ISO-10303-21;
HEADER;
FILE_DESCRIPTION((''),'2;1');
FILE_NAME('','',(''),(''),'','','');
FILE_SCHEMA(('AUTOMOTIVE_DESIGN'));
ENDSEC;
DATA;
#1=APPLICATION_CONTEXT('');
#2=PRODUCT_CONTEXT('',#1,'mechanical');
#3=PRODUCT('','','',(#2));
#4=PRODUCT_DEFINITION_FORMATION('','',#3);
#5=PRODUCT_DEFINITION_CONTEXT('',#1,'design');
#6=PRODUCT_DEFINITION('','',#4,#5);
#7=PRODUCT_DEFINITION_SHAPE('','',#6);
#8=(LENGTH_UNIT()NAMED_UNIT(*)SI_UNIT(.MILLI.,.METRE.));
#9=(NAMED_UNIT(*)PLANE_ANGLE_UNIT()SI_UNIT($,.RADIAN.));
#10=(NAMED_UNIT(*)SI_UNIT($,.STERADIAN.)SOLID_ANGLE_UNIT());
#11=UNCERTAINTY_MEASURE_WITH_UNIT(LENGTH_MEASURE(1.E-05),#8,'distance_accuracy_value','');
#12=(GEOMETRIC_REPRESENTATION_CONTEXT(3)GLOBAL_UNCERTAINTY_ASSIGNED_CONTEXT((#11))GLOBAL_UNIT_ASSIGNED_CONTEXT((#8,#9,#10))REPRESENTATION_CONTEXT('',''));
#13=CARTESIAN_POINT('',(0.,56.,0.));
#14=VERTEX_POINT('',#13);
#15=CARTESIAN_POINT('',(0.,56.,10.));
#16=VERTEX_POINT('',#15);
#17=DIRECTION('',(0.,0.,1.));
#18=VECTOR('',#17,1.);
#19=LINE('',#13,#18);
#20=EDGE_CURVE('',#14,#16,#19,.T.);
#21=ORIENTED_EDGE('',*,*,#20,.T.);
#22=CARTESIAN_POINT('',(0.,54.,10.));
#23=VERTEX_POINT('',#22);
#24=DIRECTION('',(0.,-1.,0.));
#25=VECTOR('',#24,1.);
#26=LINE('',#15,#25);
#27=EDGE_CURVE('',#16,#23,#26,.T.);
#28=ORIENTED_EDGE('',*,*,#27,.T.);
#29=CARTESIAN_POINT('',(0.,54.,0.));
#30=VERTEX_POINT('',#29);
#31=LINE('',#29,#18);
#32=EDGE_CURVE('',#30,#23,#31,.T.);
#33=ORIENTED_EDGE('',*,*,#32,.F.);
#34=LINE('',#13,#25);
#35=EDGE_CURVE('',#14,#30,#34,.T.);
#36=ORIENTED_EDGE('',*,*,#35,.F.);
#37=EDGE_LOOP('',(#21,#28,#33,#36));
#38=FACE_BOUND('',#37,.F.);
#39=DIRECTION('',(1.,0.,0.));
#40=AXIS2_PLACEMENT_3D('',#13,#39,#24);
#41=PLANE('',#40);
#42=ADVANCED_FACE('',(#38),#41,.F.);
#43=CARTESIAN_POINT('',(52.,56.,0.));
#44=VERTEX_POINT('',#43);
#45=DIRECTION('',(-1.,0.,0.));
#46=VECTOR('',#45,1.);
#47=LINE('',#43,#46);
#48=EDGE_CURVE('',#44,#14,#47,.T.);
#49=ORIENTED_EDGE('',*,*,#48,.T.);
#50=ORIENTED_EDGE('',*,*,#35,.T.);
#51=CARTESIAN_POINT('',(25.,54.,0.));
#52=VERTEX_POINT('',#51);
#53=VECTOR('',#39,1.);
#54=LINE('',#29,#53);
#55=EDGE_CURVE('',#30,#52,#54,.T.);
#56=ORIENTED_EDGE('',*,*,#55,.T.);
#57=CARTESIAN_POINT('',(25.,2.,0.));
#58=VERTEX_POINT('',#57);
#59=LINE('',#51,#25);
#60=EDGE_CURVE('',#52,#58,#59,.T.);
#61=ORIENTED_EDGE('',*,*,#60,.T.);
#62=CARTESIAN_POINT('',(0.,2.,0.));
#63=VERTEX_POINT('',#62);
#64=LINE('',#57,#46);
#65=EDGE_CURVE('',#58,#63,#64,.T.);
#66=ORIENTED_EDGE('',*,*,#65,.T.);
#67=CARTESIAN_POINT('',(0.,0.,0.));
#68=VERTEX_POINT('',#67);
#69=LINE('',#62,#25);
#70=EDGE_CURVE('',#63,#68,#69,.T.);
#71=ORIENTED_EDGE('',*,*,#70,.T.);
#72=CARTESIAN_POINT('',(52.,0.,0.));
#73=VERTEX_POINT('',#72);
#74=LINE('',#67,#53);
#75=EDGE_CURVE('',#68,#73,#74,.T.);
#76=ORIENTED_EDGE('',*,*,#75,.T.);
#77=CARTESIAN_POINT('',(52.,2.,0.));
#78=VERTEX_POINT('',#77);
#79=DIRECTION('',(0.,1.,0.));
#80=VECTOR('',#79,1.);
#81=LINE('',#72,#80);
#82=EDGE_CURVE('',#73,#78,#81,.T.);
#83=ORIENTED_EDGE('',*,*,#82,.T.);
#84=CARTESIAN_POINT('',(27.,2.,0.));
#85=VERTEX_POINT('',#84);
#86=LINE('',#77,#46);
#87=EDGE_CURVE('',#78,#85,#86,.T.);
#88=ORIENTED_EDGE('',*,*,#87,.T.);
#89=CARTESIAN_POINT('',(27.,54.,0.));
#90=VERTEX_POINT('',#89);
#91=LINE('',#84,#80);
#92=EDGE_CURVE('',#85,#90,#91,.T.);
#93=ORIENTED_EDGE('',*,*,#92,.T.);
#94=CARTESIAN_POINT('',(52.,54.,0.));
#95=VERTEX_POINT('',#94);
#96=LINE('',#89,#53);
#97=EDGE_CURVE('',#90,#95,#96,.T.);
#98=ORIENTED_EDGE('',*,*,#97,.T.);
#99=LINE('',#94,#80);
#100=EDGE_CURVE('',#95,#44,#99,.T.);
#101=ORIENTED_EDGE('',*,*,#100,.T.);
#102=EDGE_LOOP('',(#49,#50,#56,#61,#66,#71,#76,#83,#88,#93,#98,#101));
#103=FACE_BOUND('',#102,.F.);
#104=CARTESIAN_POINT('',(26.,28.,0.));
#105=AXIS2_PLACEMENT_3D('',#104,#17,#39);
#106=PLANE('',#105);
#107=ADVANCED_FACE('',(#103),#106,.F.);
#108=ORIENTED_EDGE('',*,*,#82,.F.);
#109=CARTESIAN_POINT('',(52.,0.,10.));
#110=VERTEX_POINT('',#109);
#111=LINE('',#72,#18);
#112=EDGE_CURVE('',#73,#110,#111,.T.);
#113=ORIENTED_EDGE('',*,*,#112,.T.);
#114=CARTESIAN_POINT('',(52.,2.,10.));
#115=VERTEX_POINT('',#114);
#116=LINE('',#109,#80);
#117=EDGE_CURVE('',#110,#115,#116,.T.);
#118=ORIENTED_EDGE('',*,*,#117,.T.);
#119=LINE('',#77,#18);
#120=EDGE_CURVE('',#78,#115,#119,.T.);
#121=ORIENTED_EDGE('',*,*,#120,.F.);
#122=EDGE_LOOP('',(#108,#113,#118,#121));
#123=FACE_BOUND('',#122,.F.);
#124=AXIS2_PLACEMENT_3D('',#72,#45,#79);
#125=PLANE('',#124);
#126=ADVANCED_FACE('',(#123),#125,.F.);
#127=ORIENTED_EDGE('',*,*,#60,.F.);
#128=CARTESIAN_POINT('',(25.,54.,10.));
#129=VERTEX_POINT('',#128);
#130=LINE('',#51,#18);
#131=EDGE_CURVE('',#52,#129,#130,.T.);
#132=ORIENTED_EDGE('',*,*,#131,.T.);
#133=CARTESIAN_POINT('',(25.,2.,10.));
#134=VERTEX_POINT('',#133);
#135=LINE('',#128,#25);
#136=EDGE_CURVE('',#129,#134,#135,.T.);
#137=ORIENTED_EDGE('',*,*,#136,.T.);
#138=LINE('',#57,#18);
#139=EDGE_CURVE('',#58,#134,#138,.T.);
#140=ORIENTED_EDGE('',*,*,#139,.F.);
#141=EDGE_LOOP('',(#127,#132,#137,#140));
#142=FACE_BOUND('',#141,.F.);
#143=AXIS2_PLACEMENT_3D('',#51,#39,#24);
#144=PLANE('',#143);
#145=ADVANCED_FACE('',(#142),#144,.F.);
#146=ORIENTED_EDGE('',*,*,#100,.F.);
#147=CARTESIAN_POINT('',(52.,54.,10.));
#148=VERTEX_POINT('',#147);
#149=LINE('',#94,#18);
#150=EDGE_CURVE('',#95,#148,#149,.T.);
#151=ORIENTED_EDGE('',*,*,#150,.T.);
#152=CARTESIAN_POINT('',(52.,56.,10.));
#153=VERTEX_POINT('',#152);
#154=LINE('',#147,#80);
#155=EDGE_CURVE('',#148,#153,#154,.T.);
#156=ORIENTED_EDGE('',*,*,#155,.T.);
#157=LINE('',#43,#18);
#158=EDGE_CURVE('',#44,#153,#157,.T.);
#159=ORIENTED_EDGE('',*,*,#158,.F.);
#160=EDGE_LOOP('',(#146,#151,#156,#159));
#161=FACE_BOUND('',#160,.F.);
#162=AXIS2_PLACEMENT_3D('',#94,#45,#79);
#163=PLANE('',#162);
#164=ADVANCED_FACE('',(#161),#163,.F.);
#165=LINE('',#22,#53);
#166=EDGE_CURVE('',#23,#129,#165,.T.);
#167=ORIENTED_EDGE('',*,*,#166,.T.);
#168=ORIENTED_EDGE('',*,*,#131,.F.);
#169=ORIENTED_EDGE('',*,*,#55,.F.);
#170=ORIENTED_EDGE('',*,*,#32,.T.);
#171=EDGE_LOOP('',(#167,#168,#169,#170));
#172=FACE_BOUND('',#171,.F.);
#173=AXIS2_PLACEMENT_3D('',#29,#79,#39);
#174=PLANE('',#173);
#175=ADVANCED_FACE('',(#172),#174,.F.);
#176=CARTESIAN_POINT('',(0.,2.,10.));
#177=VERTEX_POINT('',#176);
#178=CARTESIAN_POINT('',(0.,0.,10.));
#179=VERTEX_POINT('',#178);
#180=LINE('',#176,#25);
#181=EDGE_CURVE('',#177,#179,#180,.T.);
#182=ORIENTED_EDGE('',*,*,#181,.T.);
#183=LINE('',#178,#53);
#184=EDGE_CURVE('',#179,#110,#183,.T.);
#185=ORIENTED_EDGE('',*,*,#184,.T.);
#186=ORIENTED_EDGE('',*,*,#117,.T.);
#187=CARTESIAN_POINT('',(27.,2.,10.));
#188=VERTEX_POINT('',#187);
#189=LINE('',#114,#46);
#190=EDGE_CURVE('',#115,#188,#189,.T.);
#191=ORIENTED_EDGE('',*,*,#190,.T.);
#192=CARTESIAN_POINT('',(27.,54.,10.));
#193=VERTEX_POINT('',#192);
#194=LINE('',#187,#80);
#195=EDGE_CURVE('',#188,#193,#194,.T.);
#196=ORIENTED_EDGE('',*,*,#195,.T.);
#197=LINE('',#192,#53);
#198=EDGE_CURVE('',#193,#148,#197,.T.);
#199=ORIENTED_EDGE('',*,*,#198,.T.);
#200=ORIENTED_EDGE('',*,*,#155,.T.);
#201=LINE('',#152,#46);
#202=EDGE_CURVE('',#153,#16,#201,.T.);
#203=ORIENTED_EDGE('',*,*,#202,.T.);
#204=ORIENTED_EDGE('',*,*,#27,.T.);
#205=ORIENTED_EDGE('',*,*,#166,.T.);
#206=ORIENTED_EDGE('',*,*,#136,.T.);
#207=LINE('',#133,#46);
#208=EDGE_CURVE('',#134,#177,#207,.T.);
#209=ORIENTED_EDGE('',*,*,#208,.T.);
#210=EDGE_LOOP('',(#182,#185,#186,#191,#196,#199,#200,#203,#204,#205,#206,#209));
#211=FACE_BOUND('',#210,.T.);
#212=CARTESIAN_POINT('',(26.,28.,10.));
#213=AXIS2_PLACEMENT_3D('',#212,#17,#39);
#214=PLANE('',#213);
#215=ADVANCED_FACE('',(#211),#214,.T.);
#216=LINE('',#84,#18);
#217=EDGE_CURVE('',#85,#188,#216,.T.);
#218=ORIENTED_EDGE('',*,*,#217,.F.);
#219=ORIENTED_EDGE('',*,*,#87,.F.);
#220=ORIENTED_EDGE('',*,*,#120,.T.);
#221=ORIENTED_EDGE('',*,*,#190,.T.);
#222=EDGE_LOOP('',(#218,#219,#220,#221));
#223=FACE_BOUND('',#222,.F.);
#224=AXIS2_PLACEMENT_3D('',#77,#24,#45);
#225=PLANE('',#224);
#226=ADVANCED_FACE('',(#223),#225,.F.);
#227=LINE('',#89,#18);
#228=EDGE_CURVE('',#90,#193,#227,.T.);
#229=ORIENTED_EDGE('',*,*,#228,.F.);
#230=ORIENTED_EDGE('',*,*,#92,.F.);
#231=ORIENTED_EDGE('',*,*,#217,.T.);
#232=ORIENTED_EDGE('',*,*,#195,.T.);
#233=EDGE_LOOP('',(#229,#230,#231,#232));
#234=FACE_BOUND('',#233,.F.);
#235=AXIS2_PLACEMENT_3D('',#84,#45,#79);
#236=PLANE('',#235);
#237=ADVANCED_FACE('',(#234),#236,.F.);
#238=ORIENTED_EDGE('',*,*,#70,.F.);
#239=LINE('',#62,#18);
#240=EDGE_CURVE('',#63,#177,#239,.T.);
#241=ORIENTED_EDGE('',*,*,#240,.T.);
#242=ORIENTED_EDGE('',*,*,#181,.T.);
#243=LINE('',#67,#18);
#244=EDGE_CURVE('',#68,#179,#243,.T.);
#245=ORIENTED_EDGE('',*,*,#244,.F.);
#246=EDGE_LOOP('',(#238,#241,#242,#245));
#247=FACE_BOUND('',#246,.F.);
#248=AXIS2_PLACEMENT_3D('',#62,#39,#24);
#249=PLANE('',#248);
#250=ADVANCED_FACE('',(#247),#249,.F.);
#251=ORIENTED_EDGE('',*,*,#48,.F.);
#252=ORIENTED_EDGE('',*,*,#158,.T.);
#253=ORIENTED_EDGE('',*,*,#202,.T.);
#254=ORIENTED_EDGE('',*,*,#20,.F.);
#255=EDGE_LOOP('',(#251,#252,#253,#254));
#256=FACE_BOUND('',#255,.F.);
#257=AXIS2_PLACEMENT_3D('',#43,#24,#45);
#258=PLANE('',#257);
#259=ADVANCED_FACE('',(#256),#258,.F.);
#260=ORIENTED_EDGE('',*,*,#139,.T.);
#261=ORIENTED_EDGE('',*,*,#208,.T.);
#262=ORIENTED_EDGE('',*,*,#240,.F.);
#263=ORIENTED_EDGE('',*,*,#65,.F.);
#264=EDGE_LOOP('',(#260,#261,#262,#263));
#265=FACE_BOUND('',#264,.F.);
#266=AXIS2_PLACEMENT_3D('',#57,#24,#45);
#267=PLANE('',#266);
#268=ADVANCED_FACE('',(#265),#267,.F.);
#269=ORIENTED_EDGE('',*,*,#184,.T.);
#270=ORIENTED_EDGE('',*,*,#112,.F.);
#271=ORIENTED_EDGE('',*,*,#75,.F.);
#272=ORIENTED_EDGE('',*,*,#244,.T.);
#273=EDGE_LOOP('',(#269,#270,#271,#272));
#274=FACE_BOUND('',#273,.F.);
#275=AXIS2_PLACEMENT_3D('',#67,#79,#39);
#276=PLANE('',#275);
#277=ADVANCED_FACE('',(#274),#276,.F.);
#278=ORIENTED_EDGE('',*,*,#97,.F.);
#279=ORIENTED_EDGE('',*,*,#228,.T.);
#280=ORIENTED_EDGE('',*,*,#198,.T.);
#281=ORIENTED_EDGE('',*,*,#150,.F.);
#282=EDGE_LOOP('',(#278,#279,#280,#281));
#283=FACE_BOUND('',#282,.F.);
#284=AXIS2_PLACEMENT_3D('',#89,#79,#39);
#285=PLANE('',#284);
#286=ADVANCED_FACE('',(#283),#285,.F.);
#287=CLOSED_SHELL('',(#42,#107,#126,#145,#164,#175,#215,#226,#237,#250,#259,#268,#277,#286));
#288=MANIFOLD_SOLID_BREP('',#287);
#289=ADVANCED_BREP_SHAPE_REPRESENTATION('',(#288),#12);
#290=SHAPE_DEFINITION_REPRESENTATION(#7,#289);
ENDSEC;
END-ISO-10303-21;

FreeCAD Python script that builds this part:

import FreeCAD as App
import Part
import Sketcher
from FreeCAD import Vector
Q = App.Units.Quantity


def add_polygon(sketch, points):
    """Adds a closed chain of lines whose ends are joined by coincident constraints."""
    first, n = sketch.GeometryCount, len(points)
    for a, b in zip(points, points[1:] + points[:1]):
        sketch.addGeometry(Part.LineSegment(App.Vector(*a, 0), App.Vector(*b, 0)), False)
    for i in range(n):
        sketch.addConstraint(Sketcher.Constraint("Coincident", first + i, 2, first + (i + 1) % n, 1))

doc = App.newDocument("Part")
params = doc.addObject("Spreadsheet::Sheet", "Params")
for row, (alias, value) in enumerate([
    ("sketch1_width", "25 mm"),
    ("sketch1_width2", "52 mm"),
    ("sketch1_height", "2 mm"),
    ("pad1_length", "10 mm"),
], start=1):
    params.set(f"A{row}", alias)
    params.set(f"B{row}", "=" + value)
    params.setAlias(f"B{row}", alias)

body = doc.addObject("PartDesign::Body", "Body")

# Sketch on XY plane
sketch1 = body.newObject("Sketcher::SketchObject", "Sketch")
sketch1.AttachmentSupport = (doc.getObject("XY_Plane"), [""])
sketch1.MapMode = "FlatFace"
add_polygon(sketch1, [(25, 54), (25, 2), (0, 2), (0, 0), (52, 0), (52, 2), (27, 2), (27, 54), (52, 54), (52, 56), (0, 56), (0, 54)])  # lines 0-11
sketch1.addConstraint([
    Sketcher.Constraint("Vertical", 0),
    Sketcher.Constraint("Horizontal", 1),
    Sketcher.Constraint("Vertical", 2),
    Sketcher.Constraint("Horizontal", 3),
    Sketcher.Constraint("Vertical", 4),
    Sketcher.Constraint("Horizontal", 5),
    Sketcher.Constraint("Vertical", 6),
    Sketcher.Constraint("Horizontal", 7),
    Sketcher.Constraint("Vertical", 8),
    Sketcher.Constraint("Horizontal", 9),
    Sketcher.Constraint("Vertical", 10),
    Sketcher.Constraint("Horizontal", 11),
    Sketcher.Constraint("Coincident", 2, 2, -1, 1),
    Sketcher.Constraint("PointOnObject", 9, 2, -2),
    Sketcher.Constraint("Horizontal", 1, 2, 4, 2),
    Sketcher.Constraint("Horizontal", 7, 2, 10, 2),
    Sketcher.Constraint("Vertical", 4, 2, 7, 2),
    Sketcher.Constraint("Equal", 1, 5),
    Sketcher.Constraint("Equal", 9, 0),
    Sketcher.Constraint("Equal", 4, 8),
    Sketcher.Constraint("DistanceX", 1, 2, 1, 1, Q("25 mm")),
    Sketcher.Constraint("DistanceX", 3, 1, 3, 2, Q("52 mm")),
    Sketcher.Constraint("DistanceY", 2, 2, 2, 1, Q("2 mm")),
])
sketch1.setExpression("Constraints[32]", "Params.sketch1_width")
sketch1.setExpression("Constraints[33]", "Params.sketch1_width2")
sketch1.setExpression("Constraints[34]", "Params.sketch1_height")
pad1 = body.newObject("PartDesign::Pad", "Pad")
pad1.Profile = sketch1
pad1.setExpression("Length", "Params.pad1_length")

doc.recompute()
